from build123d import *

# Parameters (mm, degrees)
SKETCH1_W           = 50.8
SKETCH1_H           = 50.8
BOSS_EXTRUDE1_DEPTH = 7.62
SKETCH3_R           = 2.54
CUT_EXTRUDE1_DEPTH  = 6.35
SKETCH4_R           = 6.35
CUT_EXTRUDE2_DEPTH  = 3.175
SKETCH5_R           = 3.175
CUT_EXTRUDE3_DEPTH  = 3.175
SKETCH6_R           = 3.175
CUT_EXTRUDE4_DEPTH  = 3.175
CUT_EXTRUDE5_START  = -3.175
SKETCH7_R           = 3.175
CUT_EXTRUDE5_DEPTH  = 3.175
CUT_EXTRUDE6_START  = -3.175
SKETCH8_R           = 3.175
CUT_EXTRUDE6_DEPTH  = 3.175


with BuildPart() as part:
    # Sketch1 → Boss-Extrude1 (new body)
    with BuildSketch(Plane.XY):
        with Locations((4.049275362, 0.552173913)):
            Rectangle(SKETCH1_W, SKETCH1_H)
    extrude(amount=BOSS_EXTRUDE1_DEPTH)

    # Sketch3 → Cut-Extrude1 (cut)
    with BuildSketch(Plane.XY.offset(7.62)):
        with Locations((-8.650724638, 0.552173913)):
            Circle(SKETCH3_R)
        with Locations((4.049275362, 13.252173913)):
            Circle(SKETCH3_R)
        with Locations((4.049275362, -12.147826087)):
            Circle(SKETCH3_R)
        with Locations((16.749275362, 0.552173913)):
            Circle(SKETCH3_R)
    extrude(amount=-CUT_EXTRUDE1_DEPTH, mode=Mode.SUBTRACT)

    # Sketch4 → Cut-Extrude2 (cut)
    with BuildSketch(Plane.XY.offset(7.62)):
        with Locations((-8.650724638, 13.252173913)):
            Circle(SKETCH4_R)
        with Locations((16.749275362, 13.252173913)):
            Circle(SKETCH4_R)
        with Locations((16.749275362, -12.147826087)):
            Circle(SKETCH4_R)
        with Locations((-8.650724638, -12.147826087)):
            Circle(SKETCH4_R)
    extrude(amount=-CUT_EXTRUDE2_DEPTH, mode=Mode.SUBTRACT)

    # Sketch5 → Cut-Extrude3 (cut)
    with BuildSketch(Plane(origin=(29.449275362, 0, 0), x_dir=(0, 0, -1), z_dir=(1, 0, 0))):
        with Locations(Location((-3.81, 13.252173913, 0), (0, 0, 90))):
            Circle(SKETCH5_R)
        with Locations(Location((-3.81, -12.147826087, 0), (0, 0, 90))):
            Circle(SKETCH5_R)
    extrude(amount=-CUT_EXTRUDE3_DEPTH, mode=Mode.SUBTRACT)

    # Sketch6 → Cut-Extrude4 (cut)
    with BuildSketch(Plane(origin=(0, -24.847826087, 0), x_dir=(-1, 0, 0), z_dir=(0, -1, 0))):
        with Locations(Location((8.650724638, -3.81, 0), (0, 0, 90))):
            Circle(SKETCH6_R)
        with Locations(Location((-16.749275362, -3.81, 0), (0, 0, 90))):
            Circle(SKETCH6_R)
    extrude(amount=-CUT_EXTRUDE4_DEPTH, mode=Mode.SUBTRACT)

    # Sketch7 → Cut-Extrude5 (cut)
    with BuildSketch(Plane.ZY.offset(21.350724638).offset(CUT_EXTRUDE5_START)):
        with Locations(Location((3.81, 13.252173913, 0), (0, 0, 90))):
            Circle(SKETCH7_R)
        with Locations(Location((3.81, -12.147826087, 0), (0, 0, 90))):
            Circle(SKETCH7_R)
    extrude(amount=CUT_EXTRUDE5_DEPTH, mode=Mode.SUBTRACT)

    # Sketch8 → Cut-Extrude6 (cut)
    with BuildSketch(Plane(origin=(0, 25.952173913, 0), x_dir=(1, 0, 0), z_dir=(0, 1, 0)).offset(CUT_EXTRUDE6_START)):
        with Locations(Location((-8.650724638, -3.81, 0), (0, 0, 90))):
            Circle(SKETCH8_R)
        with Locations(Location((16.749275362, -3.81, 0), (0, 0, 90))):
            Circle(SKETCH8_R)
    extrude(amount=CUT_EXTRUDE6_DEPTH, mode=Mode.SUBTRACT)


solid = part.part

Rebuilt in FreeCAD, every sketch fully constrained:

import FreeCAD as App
import Part
import Sketcher

V = App.Vector
Q = App.Units.Quantity


def add_polygon(sketch, points):
    """Adds a closed chain of lines whose ends are joined by coincident constraints."""
    first, n = sketch.GeometryCount, len(points)
    for a, b in zip(points, points[1:] + points[:1]):
        sketch.addGeometry(Part.LineSegment(App.Vector(*a, 0), App.Vector(*b, 0)), False)
    for i in range(n):
        sketch.addConstraint(Sketcher.Constraint("Coincident", first + i, 2, first + (i + 1) % n, 1))

doc = App.newDocument("Part")
params = doc.addObject("Spreadsheet::Sheet", "Params")
for row, (alias, value) in enumerate([
    ("sketch1_width", "2 in"),
    ("pad1_length", "0.3 in"),
    ("sketch2_diameter", "0.2 in"),
    ("pocket1_length", "0.25 in"),
    ("sketch3_diameter", "0.5 in"),
    ("pocket2_length", "0.125 in"),
    ("sketch4_diameter", "0.25 in"),
    ("pocket3_length", "0.125 in"),
    ("sketch5_diameter", "0.25 in"),
    ("pocket4_length", "0.125 in"),
    ("sketch6_diameter", "0.25 in"),
    ("pocket5_length", "0.125 in"),
    ("sketch7_diameter", "0.25 in"),
    ("pocket6_length", "0.125 in"),
], start=1):
    params.set(f"A{row}", alias)
    params.set(f"B{row}", "=" + value)
    params.setAlias(f"B{row}", alias)

body = doc.addObject("PartDesign::Body", "Body")

# Sketch on XY plane
sketch1 = body.newObject("Sketcher::SketchObject", "Sketch")
sketch1.AttachmentSupport = (doc.getObject("XY_Plane"), [""])
sketch1.MapMode = "FlatFace"
add_polygon(sketch1, [(-21, 26), (-21, -25), (29, -25), (29, 26)])  # lines 0-3
sketch1.addConstraint(Sketcher.Constraint("Vertical", 0))
sketch1.addConstraint(Sketcher.Constraint("Horizontal", 1))
sketch1.addConstraint(Sketcher.Constraint("Vertical", 2))
sketch1.addConstraint(Sketcher.Constraint("Horizontal", 3))
sketch1.addConstraint(Sketcher.Constraint("Equal", 3, 0))
sketch1.addConstraint(Sketcher.Constraint("DistanceX", 1, 1, 1, 2, Q("2 in")))
sketch1.addConstraint(Sketcher.Constraint("DistanceX", 0, 2, -1, 1, 21.350725))
sketch1.addConstraint(Sketcher.Constraint("DistanceY", 0, 2, -1, 1, 24.847826))
sketch1.setExpression("Constraints[9]", "Params.sketch1_width")
pad1 = body.newObject("PartDesign::Pad", "Pad")
pad1.Profile = sketch1
pad1.setExpression("Length", "Params.pad1_length")

# Sketch on XY plane
sketch2 = body.newObject("Sketcher::SketchObject", "Sketch001")
sketch2.AttachmentSupport = (doc.getObject("XY_Plane"), [""])
sketch2.MapMode = "FlatFace"
sketch2.AttachmentOffset = App.Placement(V(0, 0, 0.3 * 25.4), App.Rotation())
sketch2.addGeometry(Part.Circle(V(-8.7, 0.6, 0), V(0, 0, 1), 2.5), False)
sketch2.addGeometry(Part.Circle(V(4, 13.3, 0), V(0, 0, 1), 2.5), False)
sketch2.addGeometry(Part.Circle(V(4, -12.1, 0), V(0, 0, 1), 2.5), False)
sketch2.addGeometry(Part.Circle(V(16.7, 0.6, 0), V(0, 0, 1), 2.5), False)
sketch2.addConstraint(Sketcher.Constraint("Equal", 0, 1))
sketch2.addConstraint(Sketcher.Constraint("Equal", 1, 2))
sketch2.addConstraint(Sketcher.Constraint("Equal", 2, 3))
sketch2.addConstraint(Sketcher.Constraint("Horizontal", 0, 3, 3, 3))
sketch2.addConstraint(Sketcher.Constraint("Vertical", 1, 3, 2, 3))
sketch2.addConstraint(Sketcher.Constraint("Diameter", 0, Q("0.2 in")))
sketch2.addConstraint(Sketcher.Constraint("DistanceY", 2, 3, 1, 3, Q("1 in")))
sketch2.addConstraint(Sketcher.Constraint("DistanceX", 0, 3, 3, 3, Q("1 in")))
sketch2.addConstraint(Sketcher.Constraint("DistanceX", 0, 3, 1, 3, Q("0.5 in")))
sketch2.addConstraint(Sketcher.Constraint("DistanceY", 0, 3, 1, 3, Q("0.5 in")))
sketch2.addConstraint(Sketcher.Constraint("DistanceX", 0, 3, -1, 1, 8.650725))
sketch2.addConstraint(Sketcher.Constraint("DistanceY", -1, 1, 0, 3, 0.552174))
sketch2.setExpression("Constraints[5]", "Params.sketch2_diameter")
pocket1 = body.newObject("PartDesign::Pocket", "Pocket")
pocket1.Profile = sketch2
pocket1.setExpression("Length", "Params.pocket1_length")

# Sketch on XY plane
sketch3 = body.newObject("Sketcher::SketchObject", "Sketch002")
sketch3.AttachmentSupport = (doc.getObject("XY_Plane"), [""])
sketch3.MapMode = "FlatFace"
sketch3.AttachmentOffset = App.Placement(V(0, 0, 0.3 * 25.4), App.Rotation())
sketch3.addGeometry(Part.Circle(V(-9, 13, 0), V(0, 0, 1), 6), False)
sketch3.addGeometry(Part.Circle(V(17, 13, 0), V(0, 0, 1), 6), False)
sketch3.addGeometry(Part.Circle(V(17, -12, 0), V(0, 0, 1), 6), False)
sketch3.addGeometry(Part.Circle(V(-9, -12, 0), V(0, 0, 1), 6), False)
sketch3.addConstraint(Sketcher.Constraint("Equal", 0, 1))
sketch3.addConstraint(Sketcher.Constraint("Equal", 1, 2))
sketch3.addConstraint(Sketcher.Constraint("Equal", 2, 3))
sketch3.addConstraint(Sketcher.Constraint("Horizontal", 0, 3, 1, 3))
sketch3.addConstraint(Sketcher.Constraint("Horizontal", 2, 3, 3, 3))
sketch3.addConstraint(Sketcher.Constraint("Vertical", 1, 3, 2, 3))
sketch3.addConstraint(Sketcher.Constraint("Vertical", 0, 3, 3, 3))
sketch3.addConstraint(Sketcher.Constraint("Diameter", 0, Q("0.5 in")))
sketch3.addConstraint(Sketcher.Constraint("DistanceX", 0, 3, 1, 3, Q("1 in")))
sketch3.addConstraint(Sketcher.Constraint("DistanceY", 2, 3, 1, 3, Q("1 in")))
sketch3.addConstraint(Sketcher.Constraint("DistanceX", 0, 3, -1, 1, 8.650725))
sketch3.addConstraint(Sketcher.Constraint("DistanceY", -1, 1, 0, 3, 13.252174))
sketch3.setExpression("Constraints[7]", "Params.sketch3_diameter")
pocket2 = body.newObject("PartDesign::Pocket", "Pocket001")
pocket2.Profile = sketch3
pocket2.setExpression("Length", "Params.pocket2_length")

# Sketch on YZ plane
sketch4 = body.newObject("Sketcher::SketchObject", "Sketch003")
sketch4.AttachmentSupport = (doc.getObject("YZ_Plane"), [""])
sketch4.MapMode = "FlatFace"
sketch4.AttachmentOffset = App.Placement(V(0, 0, 29.449275), App.Rotation())
sketch4.addGeometry(Part.Circle(V(13.3, 3.8, 0), V(0, 0, 1), 3.2), False)
sketch4.addGeometry(Part.Circle(V(-12.1, 3.8, 0), V(0, 0, 1), 3.2), False)
sketch4.addConstraint(Sketcher.Constraint("Equal", 0, 1))
sketch4.addConstraint(Sketcher.Constraint("Horizontal", 0, 3, 1, 3))
sketch4.addConstraint(Sketcher.Constraint("Diameter", 0, Q("0.25 in")))
sketch4.addConstraint(Sketcher.Constraint("DistanceX", 1, 3, 0, 3, Q("1 in")))
sketch4.addConstraint(Sketcher.Constraint("DistanceY", -1, 1, 0, 3, Q("0.15 in")))
sketch4.addConstraint(Sketcher.Constraint("DistanceX", -1, 1, 0, 3, 13.252174))
sketch4.setExpression("Constraints[2]", "Params.sketch4_diameter")
pocket3 = body.newObject("PartDesign::Pocket", "Pocket002")
pocket3.Profile = sketch4
pocket3.setExpression("Length", "Params.pocket3_length")

# Sketch on XZ plane
sketch5 = body.newObject("Sketcher::SketchObject", "Sketch004")
sketch5.AttachmentSupport = (doc.getObject("XZ_Plane"), [""])
sketch5.MapMode = "FlatFace"
sketch5.AttachmentOffset = App.Placement(V(0, 0, 24.847826), App.Rotation())
sketch5.addGeometry(Part.Circle(V(-8.7, 3.8, 0), V(0, 0, 1), 3.2), False)
sketch5.addGeometry(Part.Circle(V(16.7, 3.8, 0), V(0, 0, 1), 3.2), False)
sketch5.addConstraint(Sketcher.Constraint("Equal", 0, 1))
sketch5.addConstraint(Sketcher.Constraint("Horizontal", 0, 3, 1, 3))
sketch5.addConstraint(Sketcher.Constraint("Diameter", 0, Q("0.25 in")))
sketch5.addConstraint(Sketcher.Constraint("DistanceX", 0, 3, 1, 3, Q("1 in")))
sketch5.addConstraint(Sketcher.Constraint("DistanceY", -1, 1, 0, 3, Q("0.15 in")))
sketch5.addConstraint(Sketcher.Constraint("DistanceX", 0, 3, -1, 1, 8.650725))
sketch5.setExpression("Constraints[2]", "Params.sketch5_diameter")
pocket4 = body.newObject("PartDesign::Pocket", "Pocket003")
pocket4.Profile = sketch5
pocket4.setExpression("Length", "Params.pocket4_length")

# Sketch on YZ plane
sketch6 = body.newObject("Sketcher::SketchObject", "Sketch005")
sketch6.AttachmentSupport = (doc.getObject("YZ_Plane"), [""])
sketch6.MapMode = "FlatFace"
sketch6.AttachmentOffset = App.Placement(V(0, 0, -18.175725), App.Rotation())
sketch6.addGeometry(Part.Circle(V(13.3, 3.8, 0), V(0, 0, 1), 3.2), False)
sketch6.addGeometry(Part.Circle(V(-12.1, 3.8, 0), V(0, 0, 1), 3.2), False)
sketch6.addConstraint(Sketcher.Constraint("Equal", 0, 1))
sketch6.addConstraint(Sketcher.Constraint("Horizontal", 0, 3, 1, 3))
sketch6.addConstraint(Sketcher.Constraint("Diameter", 0, Q("0.25 in")))
sketch6.addConstraint(Sketcher.Constraint("DistanceX", 1, 3, 0, 3, Q("1 in")))
sketch6.addConstraint(Sketcher.Constraint("DistanceY", -1, 1, 0, 3, Q("0.15 in")))
sketch6.addConstraint(Sketcher.Constraint("DistanceX", -1, 1, 0, 3, 13.252174))
sketch6.setExpression("Constraints[2]", "Params.sketch6_diameter")
pocket5 = body.newObject("PartDesign::Pocket", "Pocket004")
pocket5.Profile = sketch6
pocket5.setExpression("Length", "Params.pocket5_length")

# Sketch on XZ plane
sketch7 = body.newObject("Sketcher::SketchObject", "Sketch006")
sketch7.AttachmentSupport = (doc.getObject("XZ_Plane"), [""])
sketch7.MapMode = "FlatFace"
sketch7.AttachmentOffset = App.Placement(V(0, 0, -22.777174), App.Rotation())
sketch7.addGeometry(Part.Circle(V(-8.7, 3.8, 0), V(0, 0, 1), 3.2), False)
sketch7.addGeometry(Part.Circle(V(16.7, 3.8, 0), V(0, 0, 1), 3.2), False)
sketch7.addConstraint(Sketcher.Constraint("Equal", 0, 1))
sketch7.addConstraint(Sketcher.Constraint("Horizontal", 0, 3, 1, 3))
sketch7.addConstraint(Sketcher.Constraint("Diameter", 0, Q("0.25 in")))
sketch7.addConstraint(Sketcher.Constraint("DistanceX", 0, 3, 1, 3, Q("1 in")))
sketch7.addConstraint(Sketcher.Constraint("DistanceY", -1, 1, 0, 3, Q("0.15 in")))
sketch7.addConstraint(Sketcher.Constraint("DistanceX", 0, 3, -1, 1, 8.650725))
sketch7.setExpression("Constraints[2]", "Params.sketch7_diameter")
pocket6 = body.newObject("PartDesign::Pocket", "Pocket005")
pocket6.Profile = sketch7
pocket6.setExpression("Length", "Params.pocket6_length")

doc.recompute()
